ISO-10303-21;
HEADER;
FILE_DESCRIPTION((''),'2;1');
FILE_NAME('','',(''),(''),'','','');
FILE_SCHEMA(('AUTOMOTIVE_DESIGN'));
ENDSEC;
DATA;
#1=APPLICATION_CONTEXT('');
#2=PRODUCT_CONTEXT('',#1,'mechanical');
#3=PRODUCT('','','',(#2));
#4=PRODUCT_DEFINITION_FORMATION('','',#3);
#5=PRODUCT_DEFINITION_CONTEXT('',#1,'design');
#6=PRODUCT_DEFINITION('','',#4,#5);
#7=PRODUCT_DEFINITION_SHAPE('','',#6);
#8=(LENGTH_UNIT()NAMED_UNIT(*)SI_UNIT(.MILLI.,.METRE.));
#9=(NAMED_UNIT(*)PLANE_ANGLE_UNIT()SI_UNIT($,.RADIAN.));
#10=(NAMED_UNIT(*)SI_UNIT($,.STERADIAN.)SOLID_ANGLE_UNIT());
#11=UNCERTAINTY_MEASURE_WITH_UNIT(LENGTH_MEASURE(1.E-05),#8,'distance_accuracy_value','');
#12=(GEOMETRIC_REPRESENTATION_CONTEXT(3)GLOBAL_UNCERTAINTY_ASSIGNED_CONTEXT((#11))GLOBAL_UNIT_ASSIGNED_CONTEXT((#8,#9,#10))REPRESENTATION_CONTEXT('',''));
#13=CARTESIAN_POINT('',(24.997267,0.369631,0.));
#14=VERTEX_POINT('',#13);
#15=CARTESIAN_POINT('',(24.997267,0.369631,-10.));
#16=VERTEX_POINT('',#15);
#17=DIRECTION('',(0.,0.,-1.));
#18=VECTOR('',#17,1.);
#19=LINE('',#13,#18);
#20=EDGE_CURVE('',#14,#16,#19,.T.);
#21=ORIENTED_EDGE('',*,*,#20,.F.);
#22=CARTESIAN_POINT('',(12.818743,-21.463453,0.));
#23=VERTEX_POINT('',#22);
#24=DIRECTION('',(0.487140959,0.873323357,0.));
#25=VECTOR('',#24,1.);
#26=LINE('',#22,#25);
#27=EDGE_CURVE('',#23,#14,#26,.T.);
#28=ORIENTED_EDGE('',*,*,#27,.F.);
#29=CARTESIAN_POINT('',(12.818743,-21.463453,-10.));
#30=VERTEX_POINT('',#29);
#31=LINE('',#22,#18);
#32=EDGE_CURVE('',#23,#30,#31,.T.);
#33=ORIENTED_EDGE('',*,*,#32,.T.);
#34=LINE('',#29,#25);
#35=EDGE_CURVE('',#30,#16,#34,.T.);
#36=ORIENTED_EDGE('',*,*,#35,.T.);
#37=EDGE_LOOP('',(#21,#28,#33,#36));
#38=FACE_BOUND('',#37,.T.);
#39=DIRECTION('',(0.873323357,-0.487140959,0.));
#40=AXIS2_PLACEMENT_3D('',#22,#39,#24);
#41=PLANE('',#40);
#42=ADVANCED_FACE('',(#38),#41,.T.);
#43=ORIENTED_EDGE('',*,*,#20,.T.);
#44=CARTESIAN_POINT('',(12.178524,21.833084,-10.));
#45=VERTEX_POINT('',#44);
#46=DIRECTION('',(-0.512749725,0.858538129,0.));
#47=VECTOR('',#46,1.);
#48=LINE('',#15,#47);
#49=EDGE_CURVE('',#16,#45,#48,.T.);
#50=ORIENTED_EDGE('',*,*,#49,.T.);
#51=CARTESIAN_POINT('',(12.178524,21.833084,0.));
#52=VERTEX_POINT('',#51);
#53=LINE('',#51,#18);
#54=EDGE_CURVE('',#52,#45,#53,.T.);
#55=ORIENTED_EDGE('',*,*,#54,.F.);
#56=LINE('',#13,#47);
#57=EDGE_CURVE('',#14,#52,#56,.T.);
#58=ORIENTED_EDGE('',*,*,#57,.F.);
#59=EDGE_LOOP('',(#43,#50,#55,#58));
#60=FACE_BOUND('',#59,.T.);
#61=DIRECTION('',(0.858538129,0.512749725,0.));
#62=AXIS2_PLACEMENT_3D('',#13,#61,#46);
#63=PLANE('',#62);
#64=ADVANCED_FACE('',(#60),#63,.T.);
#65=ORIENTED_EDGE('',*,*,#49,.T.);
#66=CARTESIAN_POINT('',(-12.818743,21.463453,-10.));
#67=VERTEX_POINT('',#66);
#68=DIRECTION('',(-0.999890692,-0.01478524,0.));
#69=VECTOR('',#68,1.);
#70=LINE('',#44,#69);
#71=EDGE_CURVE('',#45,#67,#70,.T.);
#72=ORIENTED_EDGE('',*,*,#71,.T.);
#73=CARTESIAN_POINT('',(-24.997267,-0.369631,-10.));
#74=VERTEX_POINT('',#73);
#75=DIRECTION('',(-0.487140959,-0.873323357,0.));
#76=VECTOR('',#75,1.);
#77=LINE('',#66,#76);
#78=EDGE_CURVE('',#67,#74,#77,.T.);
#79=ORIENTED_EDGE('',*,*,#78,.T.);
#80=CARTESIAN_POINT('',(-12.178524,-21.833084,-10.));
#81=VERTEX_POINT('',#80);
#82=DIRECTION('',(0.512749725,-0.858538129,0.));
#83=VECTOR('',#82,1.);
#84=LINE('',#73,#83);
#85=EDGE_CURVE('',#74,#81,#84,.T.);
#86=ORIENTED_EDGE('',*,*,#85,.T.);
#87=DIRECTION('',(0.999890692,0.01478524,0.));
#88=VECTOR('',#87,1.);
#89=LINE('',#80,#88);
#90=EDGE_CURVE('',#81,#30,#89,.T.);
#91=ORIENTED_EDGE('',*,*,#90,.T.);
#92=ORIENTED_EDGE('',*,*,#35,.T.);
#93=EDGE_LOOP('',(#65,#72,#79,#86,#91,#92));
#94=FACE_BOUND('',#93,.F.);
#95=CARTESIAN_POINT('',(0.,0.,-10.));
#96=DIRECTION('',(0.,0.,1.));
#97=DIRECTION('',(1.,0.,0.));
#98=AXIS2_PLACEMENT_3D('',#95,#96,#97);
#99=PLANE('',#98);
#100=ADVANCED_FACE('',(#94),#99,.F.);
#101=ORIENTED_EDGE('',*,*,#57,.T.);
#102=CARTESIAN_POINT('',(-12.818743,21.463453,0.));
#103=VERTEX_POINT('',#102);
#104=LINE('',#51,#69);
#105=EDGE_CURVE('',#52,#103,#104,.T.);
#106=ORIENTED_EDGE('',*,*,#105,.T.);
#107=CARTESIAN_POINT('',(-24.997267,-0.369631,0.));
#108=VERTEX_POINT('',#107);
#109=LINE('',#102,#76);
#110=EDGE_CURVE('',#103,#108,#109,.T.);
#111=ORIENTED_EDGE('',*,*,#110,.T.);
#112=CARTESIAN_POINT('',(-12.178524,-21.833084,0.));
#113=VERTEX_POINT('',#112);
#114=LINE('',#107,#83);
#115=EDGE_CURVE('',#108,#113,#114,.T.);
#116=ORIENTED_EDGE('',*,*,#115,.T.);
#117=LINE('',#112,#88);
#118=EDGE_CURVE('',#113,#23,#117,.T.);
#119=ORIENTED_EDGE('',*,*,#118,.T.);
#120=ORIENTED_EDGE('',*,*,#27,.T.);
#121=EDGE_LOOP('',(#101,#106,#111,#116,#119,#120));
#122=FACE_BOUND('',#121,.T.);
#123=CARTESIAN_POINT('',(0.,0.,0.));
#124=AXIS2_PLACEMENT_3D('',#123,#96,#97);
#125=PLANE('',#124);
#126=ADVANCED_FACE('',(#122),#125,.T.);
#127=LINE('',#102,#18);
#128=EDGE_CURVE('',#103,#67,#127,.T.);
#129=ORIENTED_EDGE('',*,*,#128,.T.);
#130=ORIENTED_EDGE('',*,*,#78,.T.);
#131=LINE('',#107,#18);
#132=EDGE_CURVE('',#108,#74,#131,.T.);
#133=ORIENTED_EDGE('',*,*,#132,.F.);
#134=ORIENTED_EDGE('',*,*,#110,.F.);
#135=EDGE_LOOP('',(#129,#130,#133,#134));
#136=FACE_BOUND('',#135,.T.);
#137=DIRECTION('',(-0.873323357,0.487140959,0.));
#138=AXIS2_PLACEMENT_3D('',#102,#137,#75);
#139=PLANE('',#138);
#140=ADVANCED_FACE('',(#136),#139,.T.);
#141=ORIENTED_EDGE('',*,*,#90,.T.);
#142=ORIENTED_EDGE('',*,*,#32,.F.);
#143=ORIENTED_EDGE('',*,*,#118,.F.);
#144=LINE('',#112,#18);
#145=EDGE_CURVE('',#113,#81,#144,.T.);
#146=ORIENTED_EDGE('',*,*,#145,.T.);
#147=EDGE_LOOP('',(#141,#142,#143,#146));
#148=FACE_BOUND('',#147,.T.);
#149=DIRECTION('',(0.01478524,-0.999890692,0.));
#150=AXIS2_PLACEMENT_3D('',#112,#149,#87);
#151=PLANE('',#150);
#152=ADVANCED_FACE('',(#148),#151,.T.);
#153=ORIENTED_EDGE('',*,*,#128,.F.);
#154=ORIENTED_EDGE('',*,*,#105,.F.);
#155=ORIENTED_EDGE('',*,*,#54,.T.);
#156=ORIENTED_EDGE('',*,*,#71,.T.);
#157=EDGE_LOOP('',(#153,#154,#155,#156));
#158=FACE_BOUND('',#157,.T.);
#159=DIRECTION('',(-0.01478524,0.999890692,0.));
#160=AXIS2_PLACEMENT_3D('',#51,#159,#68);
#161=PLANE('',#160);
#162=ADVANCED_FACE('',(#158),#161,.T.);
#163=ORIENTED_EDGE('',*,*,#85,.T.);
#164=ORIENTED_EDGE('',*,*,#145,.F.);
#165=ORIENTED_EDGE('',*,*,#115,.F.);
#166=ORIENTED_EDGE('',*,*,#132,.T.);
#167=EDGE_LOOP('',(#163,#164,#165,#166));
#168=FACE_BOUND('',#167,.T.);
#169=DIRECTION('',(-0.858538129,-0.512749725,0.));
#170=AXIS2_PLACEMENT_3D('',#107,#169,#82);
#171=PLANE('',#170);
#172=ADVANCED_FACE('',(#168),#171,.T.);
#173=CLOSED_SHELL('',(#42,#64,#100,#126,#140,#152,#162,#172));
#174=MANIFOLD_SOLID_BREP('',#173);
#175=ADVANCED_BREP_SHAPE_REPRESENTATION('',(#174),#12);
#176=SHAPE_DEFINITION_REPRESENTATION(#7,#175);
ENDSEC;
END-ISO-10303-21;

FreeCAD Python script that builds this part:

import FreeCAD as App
import Part
import Sketcher
from FreeCAD import Vector


def add_polygon(sketch, points):
    """Adds a closed chain of lines whose ends are joined by coincident constraints."""
    first, n = sketch.GeometryCount, len(points)
    for a, b in zip(points, points[1:] + points[:1]):
        sketch.addGeometry(Part.LineSegment(App.Vector(*a, 0), App.Vector(*b, 0)), False)
    for i in range(n):
        sketch.addConstraint(Sketcher.Constraint("Coincident", first + i, 2, first + (i + 1) % n, 1))

doc = App.newDocument("Part")
body = doc.addObject("PartDesign::Body", "Body")

sketch1 = doc.addObject("Sketcher::SketchObject", "Sketch")
body.addObject(sketch1)
sketch1.AttachmentSupport = (doc.XY_Plane, [""])
sketch1.MapMode = "FlatFace"
add_polygon(sketch1, [(24.997267, 0.369631), (12.178524, 21.833084), (-12.818743, 21.463453), (-24.997267, -0.369631), (-12.178524, -21.833084), (12.818743, -21.463453)])
sketch1.addConstraint([
    Sketcher.Constraint("Symmetric", 0, 2, 3, 2, -1, 1),
    Sketcher.Constraint("Symmetric", 1, 2, 4, 2, -1, 1),
    Sketcher.Constraint("Symmetric", 2, 2, 5, 2, -1, 1),
    Sketcher.Constraint("Equal", 0, 1),
    Sketcher.Constraint("Equal", 1, 2),
    Sketcher.Constraint("Distance", 0, 25.0),
    Sketcher.Constraint("DistanceY", 2, 2, -1, 1, 0.369631),
    Sketcher.Constraint("DistanceY", 1, 2, 0, 2, 0.369631),
    Sketcher.Constraint("DistanceX", 2, 2, 0, 2, 37.175791),
])
pad1 = doc.addObject("PartDesign::Pad", "Pad")
body.addObject(pad1)
pad1.Profile = sketch1
pad1.Length = 10
pad1.Reversed = True

doc.recompute()
